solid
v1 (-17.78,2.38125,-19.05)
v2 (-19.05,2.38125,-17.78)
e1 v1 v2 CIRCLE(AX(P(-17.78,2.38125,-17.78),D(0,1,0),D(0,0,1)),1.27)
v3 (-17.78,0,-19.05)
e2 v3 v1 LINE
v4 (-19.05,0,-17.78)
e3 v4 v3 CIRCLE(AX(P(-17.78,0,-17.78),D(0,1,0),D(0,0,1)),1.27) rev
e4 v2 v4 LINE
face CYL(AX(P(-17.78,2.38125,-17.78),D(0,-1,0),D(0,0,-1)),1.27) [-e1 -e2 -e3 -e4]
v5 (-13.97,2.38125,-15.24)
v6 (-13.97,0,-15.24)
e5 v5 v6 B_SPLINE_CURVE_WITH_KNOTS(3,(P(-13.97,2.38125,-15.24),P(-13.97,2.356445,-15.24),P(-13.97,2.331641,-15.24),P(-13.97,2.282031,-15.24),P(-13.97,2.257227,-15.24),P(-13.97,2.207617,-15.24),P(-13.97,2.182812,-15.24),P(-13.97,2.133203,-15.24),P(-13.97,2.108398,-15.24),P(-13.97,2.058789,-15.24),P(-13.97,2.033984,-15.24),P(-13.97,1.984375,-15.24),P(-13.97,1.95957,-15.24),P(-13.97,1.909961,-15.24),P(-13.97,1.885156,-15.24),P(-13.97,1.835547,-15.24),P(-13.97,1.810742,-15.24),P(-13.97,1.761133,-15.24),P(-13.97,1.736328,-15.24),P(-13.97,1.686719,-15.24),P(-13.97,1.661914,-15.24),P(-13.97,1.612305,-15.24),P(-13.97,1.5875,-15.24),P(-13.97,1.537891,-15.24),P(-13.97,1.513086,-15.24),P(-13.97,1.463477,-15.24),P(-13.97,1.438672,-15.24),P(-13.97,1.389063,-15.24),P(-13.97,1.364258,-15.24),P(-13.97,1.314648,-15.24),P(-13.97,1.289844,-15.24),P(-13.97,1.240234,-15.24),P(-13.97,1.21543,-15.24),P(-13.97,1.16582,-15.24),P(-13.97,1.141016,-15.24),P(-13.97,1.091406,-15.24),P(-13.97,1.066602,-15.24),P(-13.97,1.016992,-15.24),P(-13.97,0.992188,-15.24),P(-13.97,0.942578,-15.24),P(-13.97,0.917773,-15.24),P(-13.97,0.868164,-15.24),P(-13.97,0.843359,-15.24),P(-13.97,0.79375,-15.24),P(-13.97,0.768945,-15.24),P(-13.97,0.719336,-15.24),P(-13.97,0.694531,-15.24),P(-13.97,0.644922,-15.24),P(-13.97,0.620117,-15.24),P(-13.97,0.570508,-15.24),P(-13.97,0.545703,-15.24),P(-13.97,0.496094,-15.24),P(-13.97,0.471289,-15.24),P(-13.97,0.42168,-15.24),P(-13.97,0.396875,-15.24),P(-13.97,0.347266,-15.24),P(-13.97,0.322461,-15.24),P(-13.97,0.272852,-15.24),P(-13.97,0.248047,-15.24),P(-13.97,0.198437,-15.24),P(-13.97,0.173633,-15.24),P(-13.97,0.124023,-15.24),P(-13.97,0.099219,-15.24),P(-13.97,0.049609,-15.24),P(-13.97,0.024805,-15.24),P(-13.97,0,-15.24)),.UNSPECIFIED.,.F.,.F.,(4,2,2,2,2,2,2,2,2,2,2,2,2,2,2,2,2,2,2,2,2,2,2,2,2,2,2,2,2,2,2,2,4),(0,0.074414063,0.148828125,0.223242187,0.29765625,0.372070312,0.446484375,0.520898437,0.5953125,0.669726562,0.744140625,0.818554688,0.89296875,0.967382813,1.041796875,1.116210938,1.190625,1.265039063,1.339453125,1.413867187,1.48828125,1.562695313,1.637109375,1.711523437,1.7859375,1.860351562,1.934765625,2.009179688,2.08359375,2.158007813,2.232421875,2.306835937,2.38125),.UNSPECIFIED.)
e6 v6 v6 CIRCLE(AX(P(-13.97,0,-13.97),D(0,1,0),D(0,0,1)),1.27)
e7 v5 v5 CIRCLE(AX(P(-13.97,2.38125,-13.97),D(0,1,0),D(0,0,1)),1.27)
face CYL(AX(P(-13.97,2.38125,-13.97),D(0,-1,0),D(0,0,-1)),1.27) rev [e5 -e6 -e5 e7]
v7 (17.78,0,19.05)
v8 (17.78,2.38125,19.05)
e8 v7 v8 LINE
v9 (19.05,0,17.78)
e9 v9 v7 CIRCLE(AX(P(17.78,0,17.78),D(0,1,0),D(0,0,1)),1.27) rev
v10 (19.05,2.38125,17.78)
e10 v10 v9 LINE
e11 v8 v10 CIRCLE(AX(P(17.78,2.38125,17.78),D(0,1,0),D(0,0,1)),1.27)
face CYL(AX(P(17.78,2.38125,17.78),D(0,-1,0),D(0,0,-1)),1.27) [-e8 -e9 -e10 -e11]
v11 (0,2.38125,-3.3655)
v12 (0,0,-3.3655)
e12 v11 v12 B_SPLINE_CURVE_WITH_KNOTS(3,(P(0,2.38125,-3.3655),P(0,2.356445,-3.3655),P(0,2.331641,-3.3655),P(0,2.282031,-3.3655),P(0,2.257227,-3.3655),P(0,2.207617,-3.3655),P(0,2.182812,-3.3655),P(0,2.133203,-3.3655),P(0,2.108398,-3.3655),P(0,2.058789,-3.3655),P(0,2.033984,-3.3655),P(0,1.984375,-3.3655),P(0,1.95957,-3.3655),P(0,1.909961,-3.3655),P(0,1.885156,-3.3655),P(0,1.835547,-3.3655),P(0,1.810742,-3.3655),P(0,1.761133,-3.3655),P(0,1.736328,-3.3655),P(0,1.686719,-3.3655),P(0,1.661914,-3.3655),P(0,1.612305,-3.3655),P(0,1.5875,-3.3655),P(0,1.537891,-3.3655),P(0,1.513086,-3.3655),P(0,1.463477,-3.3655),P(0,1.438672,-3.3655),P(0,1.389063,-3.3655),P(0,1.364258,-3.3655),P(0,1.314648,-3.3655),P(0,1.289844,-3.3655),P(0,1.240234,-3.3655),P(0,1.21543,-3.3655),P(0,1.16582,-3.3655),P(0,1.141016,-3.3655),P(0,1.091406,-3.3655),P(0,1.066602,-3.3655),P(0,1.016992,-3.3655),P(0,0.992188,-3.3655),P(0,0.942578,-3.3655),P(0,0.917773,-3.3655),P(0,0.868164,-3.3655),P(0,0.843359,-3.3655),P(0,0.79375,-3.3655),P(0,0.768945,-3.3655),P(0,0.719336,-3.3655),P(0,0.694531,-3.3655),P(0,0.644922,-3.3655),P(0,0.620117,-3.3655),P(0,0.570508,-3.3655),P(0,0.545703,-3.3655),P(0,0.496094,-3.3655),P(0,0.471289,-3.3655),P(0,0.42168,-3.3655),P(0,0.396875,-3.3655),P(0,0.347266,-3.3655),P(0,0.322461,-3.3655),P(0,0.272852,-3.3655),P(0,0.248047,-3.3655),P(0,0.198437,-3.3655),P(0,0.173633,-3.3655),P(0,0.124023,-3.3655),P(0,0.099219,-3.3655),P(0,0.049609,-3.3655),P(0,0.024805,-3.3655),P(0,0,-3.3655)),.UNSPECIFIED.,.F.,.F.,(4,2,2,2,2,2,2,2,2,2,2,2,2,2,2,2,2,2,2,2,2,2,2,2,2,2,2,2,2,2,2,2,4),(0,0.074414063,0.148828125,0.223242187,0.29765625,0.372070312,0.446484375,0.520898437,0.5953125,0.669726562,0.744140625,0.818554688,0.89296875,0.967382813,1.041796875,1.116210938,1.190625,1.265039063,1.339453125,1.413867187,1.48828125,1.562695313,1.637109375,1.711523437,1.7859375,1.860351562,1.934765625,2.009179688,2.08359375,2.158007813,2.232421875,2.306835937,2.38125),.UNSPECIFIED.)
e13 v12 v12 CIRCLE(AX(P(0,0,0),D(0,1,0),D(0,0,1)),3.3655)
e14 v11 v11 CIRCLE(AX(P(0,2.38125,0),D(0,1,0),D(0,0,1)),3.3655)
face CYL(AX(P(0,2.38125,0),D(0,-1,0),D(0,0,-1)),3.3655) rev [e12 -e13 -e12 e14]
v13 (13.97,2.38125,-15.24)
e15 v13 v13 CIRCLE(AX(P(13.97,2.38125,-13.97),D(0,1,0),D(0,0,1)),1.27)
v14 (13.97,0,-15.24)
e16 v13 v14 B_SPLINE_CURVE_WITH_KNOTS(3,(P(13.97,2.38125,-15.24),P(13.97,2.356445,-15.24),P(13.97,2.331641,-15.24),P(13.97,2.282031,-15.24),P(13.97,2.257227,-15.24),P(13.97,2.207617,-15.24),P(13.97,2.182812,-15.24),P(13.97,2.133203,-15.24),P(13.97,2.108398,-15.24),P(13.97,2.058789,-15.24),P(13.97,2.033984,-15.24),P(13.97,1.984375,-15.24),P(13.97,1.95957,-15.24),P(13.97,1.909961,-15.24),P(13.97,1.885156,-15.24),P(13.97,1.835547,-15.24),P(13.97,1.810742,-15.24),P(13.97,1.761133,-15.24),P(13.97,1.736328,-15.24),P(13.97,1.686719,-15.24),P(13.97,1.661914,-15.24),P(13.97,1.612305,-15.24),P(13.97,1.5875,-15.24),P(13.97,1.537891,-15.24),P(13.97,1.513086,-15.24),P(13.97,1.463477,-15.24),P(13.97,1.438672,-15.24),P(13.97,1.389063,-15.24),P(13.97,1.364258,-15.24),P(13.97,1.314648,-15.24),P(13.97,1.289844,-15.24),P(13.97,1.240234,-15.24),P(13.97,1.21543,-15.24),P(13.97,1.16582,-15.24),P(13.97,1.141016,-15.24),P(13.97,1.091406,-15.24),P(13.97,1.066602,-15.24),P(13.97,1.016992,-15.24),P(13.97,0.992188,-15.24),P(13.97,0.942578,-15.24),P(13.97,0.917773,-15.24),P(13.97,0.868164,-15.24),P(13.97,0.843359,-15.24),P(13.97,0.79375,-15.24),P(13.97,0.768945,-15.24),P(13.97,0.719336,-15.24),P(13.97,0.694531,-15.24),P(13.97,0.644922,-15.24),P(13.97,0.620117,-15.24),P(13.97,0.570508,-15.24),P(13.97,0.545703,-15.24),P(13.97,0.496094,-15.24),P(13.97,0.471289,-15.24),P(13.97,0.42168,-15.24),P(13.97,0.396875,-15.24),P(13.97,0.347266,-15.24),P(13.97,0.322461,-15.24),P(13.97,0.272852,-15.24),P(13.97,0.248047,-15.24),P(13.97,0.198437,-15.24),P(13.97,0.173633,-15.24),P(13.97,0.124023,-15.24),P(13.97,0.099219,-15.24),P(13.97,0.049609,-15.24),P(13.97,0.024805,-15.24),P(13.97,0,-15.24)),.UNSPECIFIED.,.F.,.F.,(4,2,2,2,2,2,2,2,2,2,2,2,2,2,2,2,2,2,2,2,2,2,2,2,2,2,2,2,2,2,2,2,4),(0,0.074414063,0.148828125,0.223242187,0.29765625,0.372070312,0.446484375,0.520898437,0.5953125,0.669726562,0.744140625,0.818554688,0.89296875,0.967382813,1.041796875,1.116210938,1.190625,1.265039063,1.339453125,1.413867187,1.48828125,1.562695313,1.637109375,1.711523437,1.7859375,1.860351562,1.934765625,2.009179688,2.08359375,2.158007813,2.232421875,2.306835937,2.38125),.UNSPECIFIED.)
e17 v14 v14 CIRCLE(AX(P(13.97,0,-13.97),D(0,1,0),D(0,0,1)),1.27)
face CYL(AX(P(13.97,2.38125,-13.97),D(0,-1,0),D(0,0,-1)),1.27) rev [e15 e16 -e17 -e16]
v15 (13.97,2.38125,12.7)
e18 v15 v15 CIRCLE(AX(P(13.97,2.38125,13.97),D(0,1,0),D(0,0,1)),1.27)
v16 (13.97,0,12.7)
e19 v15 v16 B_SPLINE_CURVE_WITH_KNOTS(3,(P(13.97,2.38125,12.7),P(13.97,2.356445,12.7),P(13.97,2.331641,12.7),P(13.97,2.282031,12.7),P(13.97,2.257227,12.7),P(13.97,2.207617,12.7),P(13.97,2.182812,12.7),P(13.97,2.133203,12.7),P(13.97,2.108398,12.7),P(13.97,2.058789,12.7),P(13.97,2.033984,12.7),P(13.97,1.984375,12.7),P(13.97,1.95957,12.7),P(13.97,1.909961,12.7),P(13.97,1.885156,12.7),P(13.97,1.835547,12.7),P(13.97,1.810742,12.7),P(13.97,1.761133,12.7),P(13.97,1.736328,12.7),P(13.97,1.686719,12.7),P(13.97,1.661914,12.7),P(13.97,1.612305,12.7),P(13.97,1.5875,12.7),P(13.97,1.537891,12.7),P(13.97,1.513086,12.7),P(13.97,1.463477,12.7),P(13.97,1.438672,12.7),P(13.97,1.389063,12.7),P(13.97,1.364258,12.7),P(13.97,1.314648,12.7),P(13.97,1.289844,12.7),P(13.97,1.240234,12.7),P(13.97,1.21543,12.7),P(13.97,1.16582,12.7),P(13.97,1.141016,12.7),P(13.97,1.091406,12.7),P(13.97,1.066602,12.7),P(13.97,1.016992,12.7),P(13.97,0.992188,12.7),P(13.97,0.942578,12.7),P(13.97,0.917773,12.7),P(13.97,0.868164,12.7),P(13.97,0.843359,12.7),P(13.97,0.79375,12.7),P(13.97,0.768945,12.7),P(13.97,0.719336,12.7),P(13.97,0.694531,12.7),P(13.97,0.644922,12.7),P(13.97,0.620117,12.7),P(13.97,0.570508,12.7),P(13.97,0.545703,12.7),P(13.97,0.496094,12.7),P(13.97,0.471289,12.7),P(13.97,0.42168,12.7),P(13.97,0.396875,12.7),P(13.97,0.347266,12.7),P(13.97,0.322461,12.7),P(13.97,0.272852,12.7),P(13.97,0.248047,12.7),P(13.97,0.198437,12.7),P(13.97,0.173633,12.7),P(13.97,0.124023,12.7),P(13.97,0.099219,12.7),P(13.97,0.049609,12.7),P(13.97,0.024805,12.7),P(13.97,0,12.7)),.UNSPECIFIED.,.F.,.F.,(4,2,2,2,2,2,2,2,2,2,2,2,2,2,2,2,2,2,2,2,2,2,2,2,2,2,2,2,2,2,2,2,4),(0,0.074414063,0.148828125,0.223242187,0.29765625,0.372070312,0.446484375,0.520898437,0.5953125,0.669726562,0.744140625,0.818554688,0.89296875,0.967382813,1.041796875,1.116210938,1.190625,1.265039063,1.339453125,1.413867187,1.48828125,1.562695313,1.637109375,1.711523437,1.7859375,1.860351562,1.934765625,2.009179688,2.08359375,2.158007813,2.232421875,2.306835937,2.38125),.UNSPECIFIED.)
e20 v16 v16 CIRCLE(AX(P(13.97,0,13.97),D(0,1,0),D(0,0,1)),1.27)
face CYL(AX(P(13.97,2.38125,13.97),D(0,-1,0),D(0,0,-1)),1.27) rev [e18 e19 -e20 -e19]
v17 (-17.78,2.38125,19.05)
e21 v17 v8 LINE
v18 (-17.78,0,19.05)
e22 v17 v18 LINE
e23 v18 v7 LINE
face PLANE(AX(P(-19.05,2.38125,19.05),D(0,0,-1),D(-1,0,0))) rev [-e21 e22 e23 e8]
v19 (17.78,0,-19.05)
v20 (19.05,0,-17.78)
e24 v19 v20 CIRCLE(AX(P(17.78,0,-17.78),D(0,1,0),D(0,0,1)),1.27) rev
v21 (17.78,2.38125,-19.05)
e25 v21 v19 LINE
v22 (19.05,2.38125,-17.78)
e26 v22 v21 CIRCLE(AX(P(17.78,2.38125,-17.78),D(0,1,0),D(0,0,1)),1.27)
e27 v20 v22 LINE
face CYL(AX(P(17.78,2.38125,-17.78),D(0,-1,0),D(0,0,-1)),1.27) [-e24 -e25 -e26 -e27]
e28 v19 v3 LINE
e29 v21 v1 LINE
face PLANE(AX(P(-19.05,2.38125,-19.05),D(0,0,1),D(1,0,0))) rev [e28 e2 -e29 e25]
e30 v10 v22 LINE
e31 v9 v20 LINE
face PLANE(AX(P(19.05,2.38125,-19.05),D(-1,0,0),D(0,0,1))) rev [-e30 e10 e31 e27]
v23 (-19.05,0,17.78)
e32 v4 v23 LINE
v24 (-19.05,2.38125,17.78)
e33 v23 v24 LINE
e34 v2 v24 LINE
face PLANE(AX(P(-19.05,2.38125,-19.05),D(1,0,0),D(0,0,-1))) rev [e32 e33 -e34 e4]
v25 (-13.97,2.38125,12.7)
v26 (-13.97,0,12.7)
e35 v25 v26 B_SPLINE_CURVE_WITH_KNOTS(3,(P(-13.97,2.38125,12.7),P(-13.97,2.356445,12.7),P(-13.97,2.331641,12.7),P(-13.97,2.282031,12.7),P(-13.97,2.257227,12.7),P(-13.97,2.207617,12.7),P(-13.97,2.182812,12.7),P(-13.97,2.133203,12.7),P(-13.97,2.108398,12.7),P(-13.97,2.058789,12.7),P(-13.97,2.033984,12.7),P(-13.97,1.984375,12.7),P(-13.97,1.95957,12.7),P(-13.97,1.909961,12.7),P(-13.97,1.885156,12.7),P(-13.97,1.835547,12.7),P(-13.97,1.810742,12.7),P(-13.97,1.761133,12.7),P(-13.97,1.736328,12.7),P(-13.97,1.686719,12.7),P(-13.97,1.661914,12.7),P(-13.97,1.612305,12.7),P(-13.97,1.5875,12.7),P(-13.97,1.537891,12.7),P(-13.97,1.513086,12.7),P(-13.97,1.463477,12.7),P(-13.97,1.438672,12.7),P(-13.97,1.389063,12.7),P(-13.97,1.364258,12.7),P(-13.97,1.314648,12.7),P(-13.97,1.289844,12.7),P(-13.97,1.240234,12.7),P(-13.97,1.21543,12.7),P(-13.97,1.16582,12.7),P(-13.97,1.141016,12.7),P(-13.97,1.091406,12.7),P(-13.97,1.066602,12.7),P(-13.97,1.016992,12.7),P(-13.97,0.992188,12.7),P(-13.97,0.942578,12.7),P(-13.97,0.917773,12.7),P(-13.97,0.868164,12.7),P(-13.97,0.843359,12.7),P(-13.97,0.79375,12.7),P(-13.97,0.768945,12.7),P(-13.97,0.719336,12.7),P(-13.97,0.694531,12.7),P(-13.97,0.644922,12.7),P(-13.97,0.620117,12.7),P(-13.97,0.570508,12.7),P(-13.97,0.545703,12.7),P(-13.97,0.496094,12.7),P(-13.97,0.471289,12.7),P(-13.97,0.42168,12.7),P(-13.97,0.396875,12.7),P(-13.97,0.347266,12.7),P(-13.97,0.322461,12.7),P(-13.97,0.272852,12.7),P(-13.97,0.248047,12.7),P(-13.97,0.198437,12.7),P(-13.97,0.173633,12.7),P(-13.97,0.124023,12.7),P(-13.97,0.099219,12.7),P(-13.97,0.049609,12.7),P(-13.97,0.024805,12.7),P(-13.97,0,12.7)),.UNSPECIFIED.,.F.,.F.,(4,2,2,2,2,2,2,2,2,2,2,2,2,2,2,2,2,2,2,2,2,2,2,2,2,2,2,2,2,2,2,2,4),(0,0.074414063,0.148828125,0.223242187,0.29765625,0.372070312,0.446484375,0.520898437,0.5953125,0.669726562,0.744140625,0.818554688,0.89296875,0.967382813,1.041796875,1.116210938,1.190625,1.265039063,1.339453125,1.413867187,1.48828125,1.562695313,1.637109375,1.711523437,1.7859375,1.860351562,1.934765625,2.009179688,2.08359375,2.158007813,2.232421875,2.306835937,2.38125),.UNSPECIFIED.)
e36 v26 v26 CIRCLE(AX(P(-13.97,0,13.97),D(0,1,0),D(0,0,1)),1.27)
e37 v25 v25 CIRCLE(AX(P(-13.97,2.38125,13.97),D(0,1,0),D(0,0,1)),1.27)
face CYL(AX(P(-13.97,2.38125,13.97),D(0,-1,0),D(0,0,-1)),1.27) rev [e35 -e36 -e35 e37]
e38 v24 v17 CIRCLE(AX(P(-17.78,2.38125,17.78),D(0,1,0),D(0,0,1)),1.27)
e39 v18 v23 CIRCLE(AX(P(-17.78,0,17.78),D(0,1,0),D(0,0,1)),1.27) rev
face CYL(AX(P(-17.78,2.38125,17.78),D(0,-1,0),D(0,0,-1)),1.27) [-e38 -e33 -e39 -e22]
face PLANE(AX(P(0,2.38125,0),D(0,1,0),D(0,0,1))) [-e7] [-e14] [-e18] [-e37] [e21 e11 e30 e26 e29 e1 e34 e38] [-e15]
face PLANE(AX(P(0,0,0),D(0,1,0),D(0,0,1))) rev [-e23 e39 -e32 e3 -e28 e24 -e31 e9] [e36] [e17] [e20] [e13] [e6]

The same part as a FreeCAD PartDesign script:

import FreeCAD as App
import Part
import Sketcher
from FreeCAD import Vector
Q = App.Units.Quantity


def edges_at(feature, points):
    """Names of the edges that pass closest to the given points."""
    edges = feature.Shape.Edges
    near = lambda p: min(range(len(edges)), key=lambda i: edges[i].distToShape(Part.Vertex(*p))[0])
    return sorted({f"Edge{near(p) + 1}" for p in points})

doc = App.newDocument("Part")
body = doc.addObject("PartDesign::Body", "Body")

# Sketch on XZ plane
sketch1 = body.newObject("Sketcher::SketchObject", "Sketch")
sketch1.AttachmentSupport = (doc.getObject("XZ_Plane"), [""])
sketch1.MapMode = "FlatFace"
sketch1.addGeometry(Part.LineSegment(Vector(-19.05, -19.05, 0), Vector(-19.05, 19.05, 0)), False)
sketch1.addGeometry(Part.LineSegment(Vector(-19.05, 19.05, 0), Vector(19.05, 19.05, 0)), False)
sketch1.addGeometry(Part.LineSegment(Vector(19.05, 19.05, 0), Vector(19.05, -19.05, 0)), False)
sketch1.addGeometry(Part.LineSegment(Vector(19.05, -19.05, 0), Vector(-19.05, -19.05, 0)), False)
sketch1.addGeometry(Part.Circle(Vector(-13.97, 13.97, 0), Vector(0, 0, 1), 1.27), False)
sketch1.addGeometry(Part.Circle(Vector(13.97, 13.97, 0), Vector(0, 0, 1), 1.27), False)
sketch1.addGeometry(Part.Circle(Vector(-13.97, -13.97, 0), Vector(0, 0, 1), 1.27), False)
sketch1.addGeometry(Part.Circle(Vector(0, 0, 0), Vector(0, 0, 1), 3.3655), False)
sketch1.addGeometry(Part.Circle(Vector(13.97, -13.97, 0), Vector(0, 0, 1), 1.27), False)
sketch1.addConstraint(Sketcher.Constraint("Coincident", 0, 2, 1, 1))
sketch1.addConstraint(Sketcher.Constraint("Coincident", 1, 2, 2, 1))
sketch1.addConstraint(Sketcher.Constraint("Coincident", 2, 2, 3, 1))
sketch1.addConstraint(Sketcher.Constraint("Coincident", 3, 2, 0, 1))
sketch1.addConstraint(Sketcher.Constraint("Vertical", 0))
sketch1.addConstraint(Sketcher.Constraint("Horizontal", 1))
sketch1.addConstraint(Sketcher.Constraint("Vertical", 2))
sketch1.addConstraint(Sketcher.Constraint("Horizontal", 3))
sketch1.addConstraint(Sketcher.Constraint("Coincident", 7, 3, -1, 1))
sketch1.addConstraint(Sketcher.Constraint("Equal", 4, 5))
sketch1.addConstraint(Sketcher.Constraint("Equal", 5, 6))
sketch1.addConstraint(Sketcher.Constraint("Equal", 6, 8))
sketch1.addConstraint(Sketcher.Constraint("Symmetric", 5, 3, 6, 3, -1, 1))
sketch1.addConstraint(Sketcher.Constraint("Symmetric", 4, 3, 8, 3, -1, 1))
sketch1.addConstraint(Sketcher.Constraint("Symmetric", 0, 2, 2, 2, -1, 1))
sketch1.addConstraint(Sketcher.Constraint("Symmetric", 4, 3, 5, 3, -2))
sketch1.addConstraint(Sketcher.Constraint("Equal", 3, 0))
sketch1.addConstraint(Sketcher.Constraint("Diameter", 4, Q("0.1 in")))
sketch1.addConstraint(Sketcher.Constraint("Diameter", 7, Q("0.265 in")))
sketch1.addConstraint(Sketcher.Constraint("DistanceX", 1, 1, 1, 2, Q("1.5 in")))
sketch1.addConstraint(Sketcher.Constraint("DistanceX", 4, 3, 5, 3, Q("1.1 in")))
sketch1.addConstraint(Sketcher.Constraint("DistanceY", 6, 3, 4, 3, Q("1.1 in")))
pad1 = body.newObject("PartDesign::Pad", "Pad")
pad1.Profile = sketch1
pad1.Length = Q("0.09375 in")
pad1.Reversed = True
doc.recompute()

fillet = body.newObject("PartDesign::Fillet", "Fillet")
fillet.Base = (pad1, edges_at(pad1, [
    (19.05, 1.191, 19.05),
    (-19.05, 1.191, 19.05),
    (-19.05, 1.191, -19.05),
    (19.05, 1.191, -19.05),
]))
fillet.Radius = Q("0.05 in")

doc.recompute()
